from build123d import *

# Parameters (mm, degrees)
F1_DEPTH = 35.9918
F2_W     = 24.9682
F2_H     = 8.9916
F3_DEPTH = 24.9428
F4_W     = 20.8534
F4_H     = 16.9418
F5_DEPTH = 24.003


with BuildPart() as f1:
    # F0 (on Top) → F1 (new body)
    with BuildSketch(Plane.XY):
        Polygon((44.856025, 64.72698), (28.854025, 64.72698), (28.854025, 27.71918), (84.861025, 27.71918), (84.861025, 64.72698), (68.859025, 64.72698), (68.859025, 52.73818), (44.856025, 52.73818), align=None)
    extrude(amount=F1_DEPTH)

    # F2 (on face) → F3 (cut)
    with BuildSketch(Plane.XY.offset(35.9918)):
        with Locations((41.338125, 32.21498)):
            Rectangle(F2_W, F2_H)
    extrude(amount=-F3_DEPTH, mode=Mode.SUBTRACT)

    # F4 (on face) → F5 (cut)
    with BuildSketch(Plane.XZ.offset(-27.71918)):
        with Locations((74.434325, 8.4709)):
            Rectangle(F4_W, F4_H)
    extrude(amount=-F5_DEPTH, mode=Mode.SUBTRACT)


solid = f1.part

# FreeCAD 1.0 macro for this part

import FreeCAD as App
import Part
import Sketcher
Q = App.Units.Quantity


def add_polygon(sketch, points):
    """Adds a closed chain of lines whose ends are joined by coincident constraints."""
    first, n = sketch.GeometryCount, len(points)
    for a, b in zip(points, points[1:] + points[:1]):
        sketch.addGeometry(Part.LineSegment(App.Vector(*a, 0), App.Vector(*b, 0)), False)
    for i in range(n):
        sketch.addConstraint(Sketcher.Constraint("Coincident", first + i, 2, first + (i + 1) % n, 1))

doc = App.newDocument("Part")
body = doc.addObject("PartDesign::Body", "Body")

# Sketch on XY plane
sketch1 = body.newObject("Sketcher::SketchObject", "Sketch")
sketch1.AttachmentSupport = (doc.getObject("XY_Plane"), [""])
sketch1.MapMode = "FlatFace"
add_polygon(sketch1, [(45, 65), (29, 65), (29, 28), (85, 28), (85, 65), (69, 65), (69, 53), (45, 53)])  # lines 0-7
sketch1.addConstraint([
    Sketcher.Constraint("Horizontal", 0),
    Sketcher.Constraint("Vertical", 1),
    Sketcher.Constraint("Horizontal", 2),
    Sketcher.Constraint("Vertical", 3),
    Sketcher.Constraint("Horizontal", 4),
    Sketcher.Constraint("Vertical", 5),
    Sketcher.Constraint("Horizontal", 6),
    Sketcher.Constraint("Vertical", 7),
    Sketcher.Constraint("Horizontal", 0, 2, 3, 2),
    Sketcher.Constraint("Equal", 0, 4),
    Sketcher.Constraint("DistanceX", 0, 2, 0, 1, Q("0.63 in")),
    Sketcher.Constraint("DistanceX", 2, 1, 2, 2, Q("2.205 in")),
    Sketcher.Constraint("DistanceY", 1, 2, 1, 1, Q("1.457 in")),
    Sketcher.Constraint("DistanceY", 5, 2, 5, 1, Q("0.472 in")),
    Sketcher.Constraint("DistanceY", -1, 1, 0, 2, 64.72698),
    Sketcher.Constraint("DistanceX", -1, 1, 0, 2, 28.854025),
])
pad1 = body.newObject("PartDesign::Pad", "Pad")
pad1.Profile = sketch1
pad1.Length = Q("1.417 in")

# Sketch on XY plane
sketch2 = body.newObject("Sketcher::SketchObject", "Sketch001")
sketch2.AttachmentSupport = (doc.getObject("XY_Plane"), [""])
sketch2.MapMode = "FlatFace"
sketch2.AttachmentOffset = App.Placement(App.Vector(0, 0, 1.417 * 25.4), App.Rotation())
add_polygon(sketch2, [(29, 37), (29, 28), (54, 28), (54, 37)])  # lines 0-3
sketch2.addConstraint([
    Sketcher.Constraint("Vertical", 0),
    Sketcher.Constraint("Horizontal", 1),
    Sketcher.Constraint("Vertical", 2),
    Sketcher.Constraint("Horizontal", 3),
    Sketcher.Constraint("DistanceX", 1, 1, 1, 2, Q("0.983 in")),
    Sketcher.Constraint("DistanceY", 0, 2, 0, 1, Q("0.354 in")),
    Sketcher.Constraint("DistanceY", -1, 1, 0, 2, 27.71918),
    Sketcher.Constraint("DistanceX", -1, 1, 0, 2, 28.854025),
])
pocket1 = body.newObject("PartDesign::Pocket", "Pocket")
pocket1.Profile = sketch2
pocket1.Length = Q("0.982 in")

# Sketch on XZ plane
sketch3 = body.newObject("Sketcher::SketchObject", "Sketch002")
sketch3.AttachmentSupport = (doc.getObject("XZ_Plane"), [""])
sketch3.MapMode = "FlatFace"
sketch3.AttachmentOffset = App.Placement(App.Vector(0, 0, -27.71918), App.Rotation())
add_polygon(sketch3, [(64, 17), (64, 0), (85, 0), (85, 17)])  # lines 0-3
sketch3.addConstraint([
    Sketcher.Constraint("Vertical", 0),
    Sketcher.Constraint("Horizontal", 1),
    Sketcher.Constraint("Vertical", 2),
    Sketcher.Constraint("Horizontal", 3),
    Sketcher.Constraint("PointOnObject", 0, 2, -1),
    Sketcher.Constraint("DistanceX", 1, 1, 1, 2, Q("0.821 in")),
    Sketcher.Constraint("DistanceY", 0, 2, 0, 1, Q("0.667 in")),
    Sketcher.Constraint("DistanceX", -1, 1, 0, 2, 64.007625),
])
pocket2 = body.newObject("PartDesign::Pocket", "Pocket001")
pocket2.Profile = sketch3
pocket2.Length = Q("0.945 in")

doc.recompute()
